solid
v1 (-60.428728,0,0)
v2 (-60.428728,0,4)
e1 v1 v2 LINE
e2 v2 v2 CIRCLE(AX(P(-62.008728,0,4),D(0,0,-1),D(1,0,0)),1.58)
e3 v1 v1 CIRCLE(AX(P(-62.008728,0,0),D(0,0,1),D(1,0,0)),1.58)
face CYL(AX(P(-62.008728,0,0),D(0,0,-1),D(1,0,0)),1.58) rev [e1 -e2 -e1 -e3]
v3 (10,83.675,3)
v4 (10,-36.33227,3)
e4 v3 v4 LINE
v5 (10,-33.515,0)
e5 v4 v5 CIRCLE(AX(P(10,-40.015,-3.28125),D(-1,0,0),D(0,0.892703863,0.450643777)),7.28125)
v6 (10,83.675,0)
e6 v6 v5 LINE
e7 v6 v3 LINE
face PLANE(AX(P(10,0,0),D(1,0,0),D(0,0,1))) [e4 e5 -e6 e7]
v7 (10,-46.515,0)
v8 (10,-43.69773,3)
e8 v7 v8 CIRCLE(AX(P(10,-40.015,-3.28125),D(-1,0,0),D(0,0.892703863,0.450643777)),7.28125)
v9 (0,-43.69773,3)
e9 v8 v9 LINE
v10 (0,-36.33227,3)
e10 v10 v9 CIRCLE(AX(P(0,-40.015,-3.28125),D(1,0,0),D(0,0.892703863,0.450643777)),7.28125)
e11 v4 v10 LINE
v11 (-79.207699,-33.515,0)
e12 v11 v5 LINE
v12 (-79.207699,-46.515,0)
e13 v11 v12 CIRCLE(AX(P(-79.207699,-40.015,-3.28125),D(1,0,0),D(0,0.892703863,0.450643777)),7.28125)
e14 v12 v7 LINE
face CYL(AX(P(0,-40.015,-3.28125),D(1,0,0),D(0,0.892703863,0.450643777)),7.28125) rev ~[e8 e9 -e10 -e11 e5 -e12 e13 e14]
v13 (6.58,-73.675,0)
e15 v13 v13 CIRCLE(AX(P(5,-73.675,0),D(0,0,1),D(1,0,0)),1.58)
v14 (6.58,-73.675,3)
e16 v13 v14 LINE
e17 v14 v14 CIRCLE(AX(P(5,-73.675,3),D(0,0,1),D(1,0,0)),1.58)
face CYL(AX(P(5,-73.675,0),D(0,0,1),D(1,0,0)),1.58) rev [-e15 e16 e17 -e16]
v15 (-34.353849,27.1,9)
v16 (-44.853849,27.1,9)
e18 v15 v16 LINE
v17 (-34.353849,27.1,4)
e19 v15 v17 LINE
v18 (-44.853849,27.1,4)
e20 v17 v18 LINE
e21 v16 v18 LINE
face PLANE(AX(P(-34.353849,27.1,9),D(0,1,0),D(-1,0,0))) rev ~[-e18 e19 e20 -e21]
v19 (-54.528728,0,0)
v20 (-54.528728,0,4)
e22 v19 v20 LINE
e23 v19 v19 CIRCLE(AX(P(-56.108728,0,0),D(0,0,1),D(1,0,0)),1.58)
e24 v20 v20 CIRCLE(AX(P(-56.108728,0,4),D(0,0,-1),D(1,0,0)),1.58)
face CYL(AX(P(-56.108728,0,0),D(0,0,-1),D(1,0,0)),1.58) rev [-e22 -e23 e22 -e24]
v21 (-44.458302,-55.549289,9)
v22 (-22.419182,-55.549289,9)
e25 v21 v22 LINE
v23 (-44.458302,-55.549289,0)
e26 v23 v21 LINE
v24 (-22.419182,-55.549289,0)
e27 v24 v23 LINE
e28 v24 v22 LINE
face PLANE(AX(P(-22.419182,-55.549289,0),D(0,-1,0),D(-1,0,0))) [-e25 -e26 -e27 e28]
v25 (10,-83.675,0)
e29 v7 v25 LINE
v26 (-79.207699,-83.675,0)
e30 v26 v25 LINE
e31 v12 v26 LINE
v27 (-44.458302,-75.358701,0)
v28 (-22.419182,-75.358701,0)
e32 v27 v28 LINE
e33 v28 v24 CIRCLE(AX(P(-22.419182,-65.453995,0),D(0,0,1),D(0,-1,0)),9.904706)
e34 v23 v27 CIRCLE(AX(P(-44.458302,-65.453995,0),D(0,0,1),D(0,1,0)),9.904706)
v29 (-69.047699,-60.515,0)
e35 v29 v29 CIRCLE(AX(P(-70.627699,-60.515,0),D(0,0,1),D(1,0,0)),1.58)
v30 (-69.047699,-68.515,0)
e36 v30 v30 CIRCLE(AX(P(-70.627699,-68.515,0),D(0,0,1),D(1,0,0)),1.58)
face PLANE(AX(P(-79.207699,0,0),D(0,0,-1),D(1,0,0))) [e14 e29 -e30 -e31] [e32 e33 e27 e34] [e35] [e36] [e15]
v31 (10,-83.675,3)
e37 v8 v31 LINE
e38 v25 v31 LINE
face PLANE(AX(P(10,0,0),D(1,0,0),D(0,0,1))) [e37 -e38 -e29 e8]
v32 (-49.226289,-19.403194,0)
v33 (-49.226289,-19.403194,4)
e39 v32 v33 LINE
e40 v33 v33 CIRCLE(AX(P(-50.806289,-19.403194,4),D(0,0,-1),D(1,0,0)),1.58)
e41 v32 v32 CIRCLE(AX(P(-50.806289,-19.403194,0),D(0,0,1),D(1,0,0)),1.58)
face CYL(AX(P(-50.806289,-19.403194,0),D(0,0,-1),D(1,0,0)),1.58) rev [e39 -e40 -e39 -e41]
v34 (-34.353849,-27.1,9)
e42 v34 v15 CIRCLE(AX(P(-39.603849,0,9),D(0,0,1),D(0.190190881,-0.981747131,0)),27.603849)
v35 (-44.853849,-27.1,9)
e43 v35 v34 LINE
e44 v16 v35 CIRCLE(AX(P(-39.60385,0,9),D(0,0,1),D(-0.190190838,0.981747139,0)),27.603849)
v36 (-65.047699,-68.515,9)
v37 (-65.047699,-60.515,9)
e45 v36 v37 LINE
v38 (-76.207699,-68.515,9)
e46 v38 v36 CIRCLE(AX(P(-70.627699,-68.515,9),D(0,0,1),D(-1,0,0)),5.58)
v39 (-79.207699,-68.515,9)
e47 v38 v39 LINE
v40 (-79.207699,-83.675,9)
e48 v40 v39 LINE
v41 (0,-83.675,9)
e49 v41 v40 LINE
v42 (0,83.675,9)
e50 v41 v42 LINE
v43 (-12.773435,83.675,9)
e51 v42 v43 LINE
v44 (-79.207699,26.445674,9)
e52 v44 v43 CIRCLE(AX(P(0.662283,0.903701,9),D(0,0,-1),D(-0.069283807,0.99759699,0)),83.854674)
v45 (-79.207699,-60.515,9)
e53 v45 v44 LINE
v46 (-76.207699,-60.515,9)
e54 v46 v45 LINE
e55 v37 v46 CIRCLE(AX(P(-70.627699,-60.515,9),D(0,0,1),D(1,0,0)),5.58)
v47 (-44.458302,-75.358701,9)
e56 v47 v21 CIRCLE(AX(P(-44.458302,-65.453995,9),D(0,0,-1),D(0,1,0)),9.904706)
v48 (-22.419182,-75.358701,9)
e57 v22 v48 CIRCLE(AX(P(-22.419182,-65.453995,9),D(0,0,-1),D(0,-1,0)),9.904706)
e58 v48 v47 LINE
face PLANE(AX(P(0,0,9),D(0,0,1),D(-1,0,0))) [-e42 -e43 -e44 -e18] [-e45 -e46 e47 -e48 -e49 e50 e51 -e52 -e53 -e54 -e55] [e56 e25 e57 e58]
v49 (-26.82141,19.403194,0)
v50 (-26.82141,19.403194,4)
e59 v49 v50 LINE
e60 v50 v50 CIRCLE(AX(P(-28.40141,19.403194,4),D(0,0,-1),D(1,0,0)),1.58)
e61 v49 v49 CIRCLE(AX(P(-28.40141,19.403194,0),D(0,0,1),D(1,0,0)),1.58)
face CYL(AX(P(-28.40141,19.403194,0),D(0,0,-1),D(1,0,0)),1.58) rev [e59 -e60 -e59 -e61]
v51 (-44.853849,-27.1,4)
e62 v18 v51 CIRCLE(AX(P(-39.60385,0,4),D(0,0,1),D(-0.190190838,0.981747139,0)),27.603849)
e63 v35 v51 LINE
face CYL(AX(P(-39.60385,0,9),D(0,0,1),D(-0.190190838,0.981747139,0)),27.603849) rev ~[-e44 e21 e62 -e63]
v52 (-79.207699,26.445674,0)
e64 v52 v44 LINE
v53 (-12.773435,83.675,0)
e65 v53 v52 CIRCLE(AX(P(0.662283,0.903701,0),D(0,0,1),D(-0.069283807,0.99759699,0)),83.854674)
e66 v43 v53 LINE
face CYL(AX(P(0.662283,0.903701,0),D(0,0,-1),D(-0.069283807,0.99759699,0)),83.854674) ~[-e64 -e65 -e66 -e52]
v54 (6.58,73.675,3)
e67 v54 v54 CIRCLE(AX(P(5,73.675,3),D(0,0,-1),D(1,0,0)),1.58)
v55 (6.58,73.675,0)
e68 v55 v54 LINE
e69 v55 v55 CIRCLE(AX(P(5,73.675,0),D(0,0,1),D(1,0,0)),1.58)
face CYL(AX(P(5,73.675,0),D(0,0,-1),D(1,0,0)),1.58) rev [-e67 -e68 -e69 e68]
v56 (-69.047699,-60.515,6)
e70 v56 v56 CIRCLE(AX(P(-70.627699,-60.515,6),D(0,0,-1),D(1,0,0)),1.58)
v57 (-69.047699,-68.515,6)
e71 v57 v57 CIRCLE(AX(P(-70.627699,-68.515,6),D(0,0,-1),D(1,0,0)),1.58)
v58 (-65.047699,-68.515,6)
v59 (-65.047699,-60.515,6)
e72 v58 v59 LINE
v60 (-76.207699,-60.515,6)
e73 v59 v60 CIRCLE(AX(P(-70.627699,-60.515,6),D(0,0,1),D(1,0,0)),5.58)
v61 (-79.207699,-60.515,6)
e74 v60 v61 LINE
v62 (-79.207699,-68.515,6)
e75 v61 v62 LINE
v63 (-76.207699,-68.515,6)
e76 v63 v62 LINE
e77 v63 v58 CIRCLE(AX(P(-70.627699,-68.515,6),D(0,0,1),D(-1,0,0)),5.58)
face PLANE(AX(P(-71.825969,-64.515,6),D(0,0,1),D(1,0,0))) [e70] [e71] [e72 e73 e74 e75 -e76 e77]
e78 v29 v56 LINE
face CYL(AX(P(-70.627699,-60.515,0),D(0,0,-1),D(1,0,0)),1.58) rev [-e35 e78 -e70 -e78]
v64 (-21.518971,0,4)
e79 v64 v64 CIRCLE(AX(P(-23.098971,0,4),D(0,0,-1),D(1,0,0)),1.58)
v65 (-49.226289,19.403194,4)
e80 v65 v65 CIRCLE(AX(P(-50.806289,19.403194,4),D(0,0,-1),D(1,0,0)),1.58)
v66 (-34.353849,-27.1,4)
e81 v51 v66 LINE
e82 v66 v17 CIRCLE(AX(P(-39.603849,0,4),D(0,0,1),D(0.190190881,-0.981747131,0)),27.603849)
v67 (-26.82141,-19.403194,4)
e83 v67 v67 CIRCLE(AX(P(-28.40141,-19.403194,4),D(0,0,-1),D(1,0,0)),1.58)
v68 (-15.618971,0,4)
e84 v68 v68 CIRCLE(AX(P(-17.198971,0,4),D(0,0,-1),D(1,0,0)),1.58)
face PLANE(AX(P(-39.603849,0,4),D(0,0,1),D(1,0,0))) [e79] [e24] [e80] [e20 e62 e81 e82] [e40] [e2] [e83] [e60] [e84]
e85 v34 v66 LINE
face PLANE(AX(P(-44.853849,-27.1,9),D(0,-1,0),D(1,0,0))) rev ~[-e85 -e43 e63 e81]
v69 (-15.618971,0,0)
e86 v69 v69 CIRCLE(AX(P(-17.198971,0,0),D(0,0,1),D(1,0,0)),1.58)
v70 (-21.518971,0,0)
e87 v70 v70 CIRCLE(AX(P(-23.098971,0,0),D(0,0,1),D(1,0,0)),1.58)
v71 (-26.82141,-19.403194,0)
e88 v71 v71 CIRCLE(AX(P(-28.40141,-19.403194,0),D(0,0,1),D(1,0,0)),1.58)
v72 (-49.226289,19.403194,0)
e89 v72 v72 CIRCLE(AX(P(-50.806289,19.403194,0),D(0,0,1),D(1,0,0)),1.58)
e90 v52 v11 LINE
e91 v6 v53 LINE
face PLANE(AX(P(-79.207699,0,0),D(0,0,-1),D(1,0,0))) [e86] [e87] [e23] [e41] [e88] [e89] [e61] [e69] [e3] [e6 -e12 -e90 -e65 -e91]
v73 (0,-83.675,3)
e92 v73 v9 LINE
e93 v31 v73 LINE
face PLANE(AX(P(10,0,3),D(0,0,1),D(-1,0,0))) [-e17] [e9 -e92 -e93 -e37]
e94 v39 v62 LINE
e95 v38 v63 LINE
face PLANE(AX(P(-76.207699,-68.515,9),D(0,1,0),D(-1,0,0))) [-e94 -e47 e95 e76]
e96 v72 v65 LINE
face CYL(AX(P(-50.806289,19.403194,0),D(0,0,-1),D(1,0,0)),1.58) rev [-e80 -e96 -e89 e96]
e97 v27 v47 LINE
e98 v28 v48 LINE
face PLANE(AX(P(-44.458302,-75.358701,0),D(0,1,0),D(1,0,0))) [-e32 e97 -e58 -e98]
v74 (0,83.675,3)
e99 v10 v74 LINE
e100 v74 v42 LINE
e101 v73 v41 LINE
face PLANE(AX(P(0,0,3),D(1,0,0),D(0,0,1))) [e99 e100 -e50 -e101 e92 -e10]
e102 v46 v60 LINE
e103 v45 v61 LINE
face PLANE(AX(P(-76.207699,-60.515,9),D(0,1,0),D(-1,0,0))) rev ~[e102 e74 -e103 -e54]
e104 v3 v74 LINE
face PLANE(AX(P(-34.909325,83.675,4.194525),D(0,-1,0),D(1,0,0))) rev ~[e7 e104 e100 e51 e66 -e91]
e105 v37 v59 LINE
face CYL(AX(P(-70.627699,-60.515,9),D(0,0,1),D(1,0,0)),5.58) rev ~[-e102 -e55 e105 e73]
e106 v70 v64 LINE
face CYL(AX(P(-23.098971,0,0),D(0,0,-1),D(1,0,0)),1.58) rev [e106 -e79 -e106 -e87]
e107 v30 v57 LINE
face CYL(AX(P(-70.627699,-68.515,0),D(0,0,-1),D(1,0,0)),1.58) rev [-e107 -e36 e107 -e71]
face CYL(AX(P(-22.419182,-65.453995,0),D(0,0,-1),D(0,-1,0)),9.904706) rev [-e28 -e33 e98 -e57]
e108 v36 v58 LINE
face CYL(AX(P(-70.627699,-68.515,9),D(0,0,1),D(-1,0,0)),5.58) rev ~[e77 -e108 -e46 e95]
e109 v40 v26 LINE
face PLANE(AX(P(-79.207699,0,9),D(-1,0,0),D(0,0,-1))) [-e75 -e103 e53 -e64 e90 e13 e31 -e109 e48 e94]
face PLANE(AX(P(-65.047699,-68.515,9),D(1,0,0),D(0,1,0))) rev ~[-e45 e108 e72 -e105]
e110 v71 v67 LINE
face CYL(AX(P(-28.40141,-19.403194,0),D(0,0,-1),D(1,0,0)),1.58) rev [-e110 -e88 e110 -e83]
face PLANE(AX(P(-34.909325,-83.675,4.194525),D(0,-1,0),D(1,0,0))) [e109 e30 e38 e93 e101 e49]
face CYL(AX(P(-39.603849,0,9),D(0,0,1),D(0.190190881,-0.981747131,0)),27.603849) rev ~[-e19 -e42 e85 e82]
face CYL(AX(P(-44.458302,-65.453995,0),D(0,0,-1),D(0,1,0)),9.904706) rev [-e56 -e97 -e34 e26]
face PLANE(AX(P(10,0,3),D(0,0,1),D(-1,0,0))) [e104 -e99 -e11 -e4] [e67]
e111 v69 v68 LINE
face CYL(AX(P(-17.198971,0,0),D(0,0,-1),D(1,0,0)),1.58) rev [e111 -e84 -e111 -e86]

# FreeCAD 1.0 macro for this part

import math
import FreeCAD as App
import Part
import Sketcher

V = App.Vector
Q = App.Units.Quantity

doc = App.newDocument("Part")
body = doc.addObject("PartDesign::Body", "Body")

sketch1 = doc.addObject("Sketcher::SketchObject", "Sketch")
body.addObject(sketch1)
sketch1.AttachmentSupport = (doc.XZ_Plane, [""])
sketch1.MapMode = "FlatFace"
sketch1.addGeometry([
    Part.LineSegment(V(-79.2, 9, 0), V(-79.2, 0, 0)),
    Part.LineSegment(V(-79.2, 0, 0), V(10, 0, 0)),
    Part.LineSegment(V(10, 0, 0), V(10, 3, 0)),
    Part.LineSegment(V(10, 3, 0), V(0, 3, 0)),
    Part.LineSegment(V(0, 3, 0), V(0, 9, 0)),
    Part.LineSegment(V(0, 9, 0), V(-79.2, 9, 0)),
], False)
sketch1.addConstraint([
    Sketcher.Constraint("Coincident", 0, 2, 1, 1),
    Sketcher.Constraint("Coincident", 1, 2, 2, 1),
    Sketcher.Constraint("Coincident", 2, 2, 3, 1),
    Sketcher.Constraint("Coincident", 3, 2, 4, 1),
    Sketcher.Constraint("Coincident", 4, 2, 5, 1),
    Sketcher.Constraint("Coincident", 5, 2, 0, 1),
    Sketcher.Constraint("Vertical", 0),
    Sketcher.Constraint("Horizontal", 1),
    Sketcher.Constraint("Vertical", 2),
    Sketcher.Constraint("Horizontal", 3),
    Sketcher.Constraint("Vertical", 4),
    Sketcher.Constraint("Horizontal", 5),
    Sketcher.Constraint("PointOnObject", 0, 2, -1),
    Sketcher.Constraint("PointOnObject", 3, 2, -2),
    Sketcher.Constraint("DistanceX", 3, 2, 3, 1, Q("10 mm")),
    Sketcher.Constraint("DistanceY", 0, 2, 0, 1, Q("9 mm")),
    Sketcher.Constraint("DistanceY", 2, 1, 2, 2, Q("3 mm")),
    Sketcher.Constraint("DistanceX", 1, 1, 1, 2, Q("89.207699 mm")),
])
pad1 = doc.addObject("PartDesign::Pad", "Pad")
body.addObject(pad1)
pad1.Profile = sketch1
pad1.Length = 167.35
pad1.Midplane = True

sketch2 = doc.addObject("Sketcher::SketchObject", "Sketch001")
body.addObject(sketch2)
sketch2.AttachmentSupport = (doc.XY_Plane, [""])
sketch2.MapMode = "FlatFace"
sketch2.AttachmentOffset = App.Placement(V(0, 0, 9), App.Rotation())
sketch2.addGeometry([
    Part.LineSegment(V(-34, 27, 0), V(-45, 27, 0)),
    Part.ArcOfCircle(Part.Circle(V(-40, 0, 0), V(0, 0, 1), 28), math.radians(101), math.radians(259)),
    Part.LineSegment(V(-45, -27, 0), V(-34, -27, 0)),
    Part.ArcOfCircle(Part.Circle(V(-40, 0, 0), V(0, 0, 1), 28), math.radians(-79), math.radians(79)),
], False)
sketch2.addConstraint([
    Sketcher.Constraint("Coincident", 0, 2, 1, 1),
    Sketcher.Constraint("Coincident", 1, 2, 2, 1),
    Sketcher.Constraint("Coincident", 2, 2, 3, 1),
    Sketcher.Constraint("Coincident", 3, 2, 0, 1),
    Sketcher.Constraint("Horizontal", 0),
    Sketcher.Constraint("Horizontal", 2),
    Sketcher.Constraint("Coincident", 3, 3, 1, 3),
    Sketcher.Constraint("Equal", 1, 3),
    Sketcher.Constraint("Symmetric", 0, 2, 1, 2, -1),
    Sketcher.Constraint("DistanceX", 0, 2, 0, 1, Q("10.5 mm")),
    Sketcher.Constraint("DistanceY", -1, 1, 0, 2, Q("27.1 mm")),
    Sketcher.Constraint("DistanceX", 1, 3, -1, 1, Q("39.60385 mm")),
])
pocket1 = doc.addObject("PartDesign::Pocket", "Pocket")
body.addObject(pocket1)
pocket1.Profile = sketch2
pocket1.Length = 5

sketch3 = doc.addObject("Sketcher::SketchObject", "Sketch002")
body.addObject(sketch3)
sketch3.AttachmentSupport = (doc.XY_Plane, [""])
sketch3.MapMode = "FlatFace"
sketch3.addGeometry([
    Part.Circle(V(-50.8, -19.4, 0), V(0, 0, 1), 1.6),
    Part.Circle(V(-28.4, -19.4, 0), V(0, 0, 1), 1.6),
    Part.Circle(V(-28.4, 19.4, 0), V(0, 0, 1), 1.6),
    Part.Circle(V(-50.8, 19.4, 0), V(0, 0, 1), 1.6),
    Part.Circle(V(-62, 0, 0), V(0, 0, 1), 1.6),
    Part.Circle(V(-56.1, 0, 0), V(0, 0, 1), 1.6),
    Part.Circle(V(-17.2, 0, 0), V(0, 0, 1), 1.6),
    Part.Circle(V(-23.1, 0, 0), V(0, 0, 1), 1.6),
], False)
sketch3.addConstraint([
    Sketcher.Constraint("Equal", 0, 1),
    Sketcher.Constraint("Equal", 1, 2),
    Sketcher.Constraint("Equal", 2, 3),
    Sketcher.Constraint("Equal", 3, 4),
    Sketcher.Constraint("Equal", 4, 5),
    Sketcher.Constraint("Equal", 5, 6),
    Sketcher.Constraint("Equal", 6, 7),
    Sketcher.Constraint("Symmetric", 1, 3, 2, 3, -1),
    Sketcher.Constraint("Symmetric", 0, 3, 3, 3, -1),
    Sketcher.Constraint("PointOnObject", 4, 3, -1),
    Sketcher.Constraint("PointOnObject", 5, 3, -1),
    Sketcher.Constraint("PointOnObject", 6, 3, -1),
    Sketcher.Constraint("PointOnObject", 7, 3, -1),
    Sketcher.Constraint("Horizontal", 0, 3, 1, 3),
    Sketcher.Constraint("Diameter", 0, Q("3.16 mm")),
    Sketcher.Constraint("DistanceX", 4, 3, 5, 3, Q("5.9 mm")),
    Sketcher.Constraint("DistanceX", 7, 3, 6, 3, Q("5.9 mm")),
    Sketcher.Constraint("DistanceX", 0, 3, -1, 1, Q("50.806289 mm")),
    Sketcher.Constraint("DistanceX", 1, 3, -1, 1, Q("28.40141 mm")),
    Sketcher.Constraint("DistanceX", 6, 3, -1, 1, Q("17.198971 mm")),
    Sketcher.Constraint("DistanceX", 4, 3, 0, 3, Q("11.202439 mm")),
    Sketcher.Constraint("DistanceY", 0, 3, -1, 1, Q("19.403194 mm")),
])
pocket2 = doc.addObject("PartDesign::Pocket", "Pocket001")
body.addObject(pocket2)
pocket2.Profile = sketch3
pocket2.Type = "ThroughAll"
pocket2.Reversed = True

sketch4 = doc.addObject("Sketcher::SketchObject", "Sketch003")
body.addObject(sketch4)
sketch4.AttachmentSupport = (doc.XY_Plane, [""])
sketch4.MapMode = "FlatFace"
sketch4.addGeometry(Part.Circle(V(5, 73.7, 0), V(0, 0, 1), 1.6), False)
sketch4.addConstraint([
    Sketcher.Constraint("Diameter", 0, Q("3.16 mm")),
    Sketcher.Constraint("DistanceX", -1, 1, 0, 3, Q("5 mm")),
    Sketcher.Constraint("DistanceY", -1, 1, 0, 3, Q("73.675 mm")),
])
pocket3 = doc.addObject("PartDesign::Pocket", "Pocket002")
body.addObject(pocket3)
pocket3.Profile = sketch4
pocket3.Type = "ThroughAll"
pocket3.Midplane = True
doc.recompute()

mirrored = doc.addObject("PartDesign::Mirrored", "Mirrored")
body.addObject(mirrored)
mirrored.Originals = [pocket3]
mirrored.MirrorPlane = (doc.XZ_Plane, [""])
body.Tip = mirrored

sketch5 = doc.addObject("Sketcher::SketchObject", "Sketch004")
body.addObject(sketch5)
sketch5.AttachmentSupport = (doc.XY_Plane, [""])
sketch5.MapMode = "FlatFace"
sketch5.addGeometry([
    Part.Circle(V(-70.6, -68.5, 0), V(0, 0, 1), 1.6),
    Part.Circle(V(-70.6, -60.5, 0), V(0, 0, 1), 1.6),
], False)
sketch5.addConstraint([
    Sketcher.Constraint("Equal", 0, 1),
    Sketcher.Constraint("Vertical", 0, 3, 1, 3),
    Sketcher.Constraint("Diameter", 0, Q("3.16 mm")),
    Sketcher.Constraint("DistanceY", 0, 3, 1, 3, Q("8 mm")),
    Sketcher.Constraint("DistanceY", 0, 3, -1, 1, Q("68.515 mm")),
    Sketcher.Constraint("DistanceX", 0, 3, -1, 1, Q("70.627699 mm")),
])
pocket4 = doc.addObject("PartDesign::Pocket", "Pocket003")
body.addObject(pocket4)
pocket4.Profile = sketch5
pocket4.Type = "ThroughAll"
pocket4.Midplane = True

sketch6 = doc.addObject("Sketcher::SketchObject", "Sketch005")
body.addObject(sketch6)
sketch6.AttachmentSupport = (doc.XY_Plane, [""])
sketch6.MapMode = "FlatFace"
sketch6.addGeometry([
    Part.ArcOfCircle(Part.Circle(V(1, 1, 0), V(0, 0, 1), 84), math.radians(94), math.radians(162)),
    Part.LineSegment(V(-5, 85, 0), V(-5, 113, 0)),
    Part.LineSegment(V(-5, 113, 0), V(-107, 113, 0)),
    Part.LineSegment(V(-107, 113, 0), V(-107, 26, 0)),
    Part.LineSegment(V(-107, 26, 0), V(-79, 26, 0)),
], False)
sketch6.addConstraint([
    Sketcher.Constraint("Coincident", 0, 1, 1, 1),
    Sketcher.Constraint("Coincident", 1, 2, 2, 1),
    Sketcher.Constraint("Coincident", 2, 2, 3, 1),
    Sketcher.Constraint("Coincident", 3, 2, 4, 1),
    Sketcher.Constraint("Coincident", 4, 2, 0, 2),
    Sketcher.Constraint("Vertical", 1),
    Sketcher.Constraint("Horizontal", 2),
    Sketcher.Constraint("Vertical", 3),
    Sketcher.Constraint("Horizontal", 4),
    Sketcher.Constraint("Radius", 0, Q("83.854674 mm")),
    Sketcher.Constraint("DistanceX", 2, 2, 2, 1, Q("102.212941 mm")),
    Sketcher.Constraint("DistanceX", 4, 1, 4, 2, Q("28.15273 mm")),
    Sketcher.Constraint("DistanceY", -1, 1, 0, 3, Q("0.903701 mm")),
    Sketcher.Constraint("DistanceX", 4, 2, -1, 1, Q("79.207699 mm")),
    Sketcher.Constraint("DistanceY", 3, 2, 0, 1, Q("58.111198 mm")),
    Sketcher.Constraint("DistanceY", 1, 1, 1, 2, Q("28.582505 mm")),
])
pocket5 = doc.addObject("PartDesign::Pocket", "Pocket004")
body.addObject(pocket5)
pocket5.Profile = sketch6
pocket5.Type = "ThroughAll"
pocket5.Midplane = True

sketch7 = doc.addObject("Sketcher::SketchObject", "Sketch006")
body.addObject(sketch7)
sketch7.AttachmentSupport = (doc.YZ_Plane, [""])
sketch7.MapMode = "FlatFace"
sketch7.addGeometry([
    Part.ArcOfCircle(Part.Circle(V(-40, -3, 0), V(0, 0, 1), 7), math.radians(27), math.radians(153)),
    Part.LineSegment(V(-47, 0, 0), V(-34, 0, 0)),
], False)
sketch7.addConstraint([
    Sketcher.Constraint("Coincident", 0, 1, 1, 2),
    Sketcher.Constraint("Coincident", 1, 1, 0, 2),
    Sketcher.Constraint("Horizontal", 1),
    Sketcher.Constraint("PointOnObject", 0, 1, -1),
    Sketcher.Constraint("DistanceX", 1, 1, 1, 2, Q("13 mm")),
    Sketcher.Constraint("Radius", 0, Q("7.28125 mm")),
    Sketcher.Constraint("DistanceX", 0, 3, -1, 1, Q("40.015 mm")),
])
pocket6 = doc.addObject("PartDesign::Pocket", "Pocket005")
body.addObject(pocket6)
pocket6.Profile = sketch7
pocket6.Type = "ThroughAll"
pocket6.Midplane = True

sketch8 = doc.addObject("Sketcher::SketchObject", "Sketch007")
body.addObject(sketch8)
sketch8.AttachmentSupport = (doc.XY_Plane, [""])
sketch8.MapMode = "FlatFace"
sketch8.addGeometry([
    Part.ArcOfCircle(Part.Circle(V(-44, -65, 0), V(0, 0, 1), 10), math.radians(90), math.radians(270)),
    Part.LineSegment(V(-44, -75, 0), V(-22, -75, 0)),
    Part.ArcOfCircle(Part.Circle(V(-22, -65, 0), V(0, 0, 1), 10), math.radians(-90), math.radians(90)),
    Part.LineSegment(V(-22, -56, 0), V(-44, -56, 0)),
], False)
sketch8.addConstraint([
    Sketcher.Constraint("Tangent", 0, 2, 1, 1),
    Sketcher.Constraint("Tangent", 1, 2, 2, 1),
    Sketcher.Constraint("Tangent", 2, 2, 3, 1),
    Sketcher.Constraint("Tangent", 3, 2, 0, 1),
    Sketcher.Constraint("Horizontal", 1),
    Sketcher.Constraint("Horizontal", 3),
    Sketcher.Constraint("Radius", 0, Q("9.904706 mm")),
    Sketcher.Constraint("DistanceX", 1, 1, 1, 2, Q("22.03912 mm")),
    Sketcher.Constraint("DistanceY", 0, 2, -1, 1, Q("75.358701 mm")),
    Sketcher.Constraint("DistanceX", 2, 3, -1, 1, Q("22.419182 mm")),
])
pocket7 = doc.addObject("PartDesign::Pocket", "Pocket006")
body.addObject(pocket7)
pocket7.Profile = sketch8
pocket7.Type = "ThroughAll"
pocket7.Midplane = True

sketch9 = doc.addObject("Sketcher::SketchObject", "Sketch008")
body.addObject(sketch9)
sketch9.AttachmentSupport = (doc.XY_Plane, [""])
sketch9.MapMode = "FlatFace"
sketch9.AttachmentOffset = App.Placement(V(0, 0, 9), App.Rotation())
sketch9.addGeometry([
    Part.LineSegment(V(-79.2, -68.5, 0), V(-76.2, -68.5, 0)),
    Part.ArcOfCircle(Part.Circle(V(-70.6, -68.5, 0), V(0, 0, 1), 5.6), math.radians(180), math.radians(360)),
    Part.LineSegment(V(-65, -68.5, 0), V(-65, -60.5, 0)),
    Part.ArcOfCircle(Part.Circle(V(-70.6, -60.5, 0), V(0, 0, 1), 5.6), math.radians(0), math.radians(180)),
    Part.LineSegment(V(-76.2, -60.5, 0), V(-79.2, -60.5, 0)),
    Part.LineSegment(V(-79.2, -60.5, 0), V(-79.2, -68.5, 0)),
], False)
sketch9.addConstraint([
    Sketcher.Constraint("Coincident", 0, 2, 1, 1),
    Sketcher.Constraint("Tangent", 1, 2, 2, 1),
    Sketcher.Constraint("Tangent", 2, 2, 3, 1),
    Sketcher.Constraint("Coincident", 3, 2, 4, 1),
    Sketcher.Constraint("Coincident", 4, 2, 5, 1),
    Sketcher.Constraint("Coincident", 5, 2, 0, 1),
    Sketcher.Constraint("Horizontal", 0),
    Sketcher.Constraint("Vertical", 2),
    Sketcher.Constraint("Horizontal", 4),
    Sketcher.Constraint("Vertical", 5),
    Sketcher.Constraint("Equal", 1, 3),
    Sketcher.Constraint("Horizontal", 1, 3, 0, 2),
    Sketcher.Constraint("Horizontal", 2, 2, 3, 2),
    Sketcher.Constraint("DistanceX", 0, 1, 0, 2, Q("3 mm")),
    Sketcher.Constraint("DistanceY", 2, 1, 2, 2, Q("8 mm")),
    Sketcher.Constraint("Radius", 1, Q("5.58 mm")),
    Sketcher.Constraint("DistanceY", 1, 3, -1, 1, Q("68.515 mm")),
    Sketcher.Constraint("DistanceX", 1, 3, -1, 1, Q("70.627699 mm")),
])
pocket8 = doc.addObject("PartDesign::Pocket", "Pocket007")
body.addObject(pocket8)
pocket8.Profile = sketch9
pocket8.Length = 3

doc.recompute()
